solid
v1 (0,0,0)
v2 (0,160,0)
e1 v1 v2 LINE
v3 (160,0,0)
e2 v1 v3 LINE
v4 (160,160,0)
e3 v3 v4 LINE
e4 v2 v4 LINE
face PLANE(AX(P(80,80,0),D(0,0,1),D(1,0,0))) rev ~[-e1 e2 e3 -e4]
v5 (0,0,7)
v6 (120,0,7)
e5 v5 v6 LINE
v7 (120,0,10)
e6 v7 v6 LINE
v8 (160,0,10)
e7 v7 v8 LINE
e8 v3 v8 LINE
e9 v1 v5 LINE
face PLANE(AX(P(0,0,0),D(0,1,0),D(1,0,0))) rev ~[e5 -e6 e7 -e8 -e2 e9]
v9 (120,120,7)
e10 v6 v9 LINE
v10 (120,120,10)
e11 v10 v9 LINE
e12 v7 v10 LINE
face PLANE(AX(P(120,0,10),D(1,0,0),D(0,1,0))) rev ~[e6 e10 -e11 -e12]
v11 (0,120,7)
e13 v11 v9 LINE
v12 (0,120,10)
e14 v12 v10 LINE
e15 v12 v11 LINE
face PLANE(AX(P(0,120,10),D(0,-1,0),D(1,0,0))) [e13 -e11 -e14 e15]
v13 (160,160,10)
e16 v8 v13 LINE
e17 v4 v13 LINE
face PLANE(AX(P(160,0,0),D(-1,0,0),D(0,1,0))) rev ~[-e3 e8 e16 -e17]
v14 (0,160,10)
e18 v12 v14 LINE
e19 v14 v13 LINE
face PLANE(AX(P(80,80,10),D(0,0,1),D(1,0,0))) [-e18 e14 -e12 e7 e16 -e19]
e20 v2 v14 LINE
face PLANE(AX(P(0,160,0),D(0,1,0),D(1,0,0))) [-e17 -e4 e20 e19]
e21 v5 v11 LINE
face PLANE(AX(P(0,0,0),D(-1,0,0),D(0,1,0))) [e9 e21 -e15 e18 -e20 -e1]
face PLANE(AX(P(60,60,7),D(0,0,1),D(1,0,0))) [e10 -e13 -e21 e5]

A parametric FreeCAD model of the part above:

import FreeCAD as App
import Part
import Sketcher

V = App.Vector


def add_polygon(sketch, points):
    """Adds a closed chain of lines whose ends are joined by coincident constraints."""
    first, n = sketch.GeometryCount, len(points)
    for a, b in zip(points, points[1:] + points[:1]):
        sketch.addGeometry(Part.LineSegment(App.Vector(*a, 0), App.Vector(*b, 0)), False)
    for i in range(n):
        sketch.addConstraint(Sketcher.Constraint("Coincident", first + i, 2, first + (i + 1) % n, 1))

doc = App.newDocument("Part")
body = doc.addObject("PartDesign::Body", "Body")

# Sketch on XY plane
sketch1 = doc.addObject("Sketcher::SketchObject", "Sketch")
body.addObject(sketch1)
sketch1.AttachmentSupport = (doc.XY_Plane, [""])
sketch1.MapMode = "FlatFace"
add_polygon(sketch1, [(0, 160), (0, 0), (160, 0), (160, 160)])  # lines 0-3
sketch1.addConstraint([
    Sketcher.Constraint("Vertical", 0),
    Sketcher.Constraint("Horizontal", 1),
    Sketcher.Constraint("Vertical", 2),
    Sketcher.Constraint("Horizontal", 3),
    Sketcher.Constraint("Coincident", 0, 2, -1, 1),
    Sketcher.Constraint("Equal", 3, 0),
    Sketcher.Constraint("DistanceX", 1, 1, 1, 2, 160.0),
])
pad1 = doc.addObject("PartDesign::Pad", "Pad")
body.addObject(pad1)
pad1.Profile = sketch1
pad1.Length = 10

# Sketch on XY plane
sketch2 = doc.addObject("Sketcher::SketchObject", "Sketch001")
body.addObject(sketch2)
sketch2.AttachmentSupport = (doc.XY_Plane, [""])
sketch2.MapMode = "FlatFace"
sketch2.AttachmentOffset = App.Placement(V(0, 0, 10), App.Rotation())
add_polygon(sketch2, [(0, 120), (0, 0), (120, 0), (120, 120)])  # lines 0-3
sketch2.addConstraint([
    Sketcher.Constraint("Vertical", 0),
    Sketcher.Constraint("Horizontal", 1),
    Sketcher.Constraint("Vertical", 2),
    Sketcher.Constraint("Horizontal", 3),
    Sketcher.Constraint("Coincident", 0, 2, -1, 1),
    Sketcher.Constraint("Equal", 3, 0),
    Sketcher.Constraint("DistanceX", 1, 1, 1, 2, 120.0),
])
pocket1 = doc.addObject("PartDesign::Pocket", "Pocket")
body.addObject(pocket1)
pocket1.Profile = sketch2
pocket1.Length = 3

doc.recompute()
